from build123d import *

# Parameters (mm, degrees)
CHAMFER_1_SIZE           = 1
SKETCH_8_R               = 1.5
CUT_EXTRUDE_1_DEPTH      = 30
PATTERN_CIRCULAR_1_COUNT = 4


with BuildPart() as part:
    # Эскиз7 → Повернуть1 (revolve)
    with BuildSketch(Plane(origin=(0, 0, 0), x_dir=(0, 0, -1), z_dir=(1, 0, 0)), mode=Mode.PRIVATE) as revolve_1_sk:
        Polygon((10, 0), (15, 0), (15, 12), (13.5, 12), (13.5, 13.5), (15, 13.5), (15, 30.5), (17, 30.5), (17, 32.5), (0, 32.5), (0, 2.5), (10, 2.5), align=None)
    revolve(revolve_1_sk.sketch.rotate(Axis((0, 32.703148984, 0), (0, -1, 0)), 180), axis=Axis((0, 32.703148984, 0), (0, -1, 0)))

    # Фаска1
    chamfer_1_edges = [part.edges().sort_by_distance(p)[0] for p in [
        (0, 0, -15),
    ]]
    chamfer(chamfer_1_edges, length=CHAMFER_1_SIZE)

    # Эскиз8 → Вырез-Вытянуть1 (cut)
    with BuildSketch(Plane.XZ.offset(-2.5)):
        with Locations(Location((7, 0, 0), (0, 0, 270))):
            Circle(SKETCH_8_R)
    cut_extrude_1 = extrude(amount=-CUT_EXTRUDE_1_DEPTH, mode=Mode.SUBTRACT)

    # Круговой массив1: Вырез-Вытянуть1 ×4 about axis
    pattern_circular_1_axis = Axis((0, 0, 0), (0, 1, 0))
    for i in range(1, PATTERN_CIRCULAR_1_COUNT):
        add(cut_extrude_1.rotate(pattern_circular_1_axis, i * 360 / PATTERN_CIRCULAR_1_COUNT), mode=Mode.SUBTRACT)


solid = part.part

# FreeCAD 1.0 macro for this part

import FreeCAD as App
import Part
import Sketcher
from FreeCAD import Vector
Q = App.Units.Quantity


def edges_at(feature, points):
    """Names of the edges that pass closest to the given points."""
    edges = feature.Shape.Edges
    near = lambda p: min(range(len(edges)), key=lambda i: edges[i].distToShape(Part.Vertex(*p))[0])
    return sorted({f"Edge{near(p) + 1}" for p in points})

doc = App.newDocument("Part")
body = doc.addObject("PartDesign::Body", "Body")

# Sketch on YZ plane
sketch1 = doc.addObject("Sketcher::SketchObject", "Sketch")
body.addObject(sketch1)
sketch1.AttachmentSupport = (doc.YZ_Plane, [""])
sketch1.MapMode = "FlatFace"
sketch1.addGeometry([
    Part.LineSegment(Vector(0, -10, 0), Vector(0, -15, 0)),  # 0
    Part.LineSegment(Vector(0, -15, 0), Vector(12, -15, 0)),  # 1
    Part.LineSegment(Vector(12, -15, 0), Vector(12, -13.5, 0)),  # 2
    Part.LineSegment(Vector(12, -13.5, 0), Vector(13.5, -13.5, 0)),  # 3
    Part.LineSegment(Vector(13.5, -13.5, 0), Vector(13.5, -15, 0)),  # 4
    Part.LineSegment(Vector(13.5, -15, 0), Vector(30.5, -15, 0)),  # 5
    Part.LineSegment(Vector(30.5, -15, 0), Vector(30.5, -17, 0)),  # 6
    Part.LineSegment(Vector(30.5, -17, 0), Vector(32.5, -17, 0)),  # 7
    Part.LineSegment(Vector(32.5, -17, 0), Vector(32.5, 0, 0)),  # 8
    Part.LineSegment(Vector(32.5, 0, 0), Vector(2.5, 0, 0)),  # 9
    Part.LineSegment(Vector(2.5, 0, 0), Vector(2.5, -10, 0)),  # 10
    Part.LineSegment(Vector(2.5, -10, 0), Vector(0, -10, 0)),  # 11
], False)
sketch1.addConstraint([
    Sketcher.Constraint("Coincident", 0, 2, 1, 1),
    Sketcher.Constraint("Coincident", 1, 2, 2, 1),
    Sketcher.Constraint("Coincident", 2, 2, 3, 1),
    Sketcher.Constraint("Coincident", 3, 2, 4, 1),
    Sketcher.Constraint("Coincident", 4, 2, 5, 1),
    Sketcher.Constraint("Coincident", 5, 2, 6, 1),
    Sketcher.Constraint("Coincident", 6, 2, 7, 1),
    Sketcher.Constraint("Coincident", 7, 2, 8, 1),
    Sketcher.Constraint("Coincident", 8, 2, 9, 1),
    Sketcher.Constraint("Coincident", 9, 2, 10, 1),
    Sketcher.Constraint("Coincident", 10, 2, 11, 1),
    Sketcher.Constraint("Coincident", 11, 2, 0, 1),
    Sketcher.Constraint("Vertical", 0),
    Sketcher.Constraint("Horizontal", 1),
    Sketcher.Constraint("Vertical", 2),
    Sketcher.Constraint("Horizontal", 3),
    Sketcher.Constraint("Vertical", 4),
    Sketcher.Constraint("Horizontal", 5),
    Sketcher.Constraint("Vertical", 6),
    Sketcher.Constraint("Horizontal", 7),
    Sketcher.Constraint("Vertical", 8),
    Sketcher.Constraint("Horizontal", 9),
    Sketcher.Constraint("Vertical", 10),
    Sketcher.Constraint("Horizontal", 11),
    Sketcher.Constraint("PointOnObject", 0, 2, -2),
    Sketcher.Constraint("PointOnObject", 8, 2, -1),
    Sketcher.Constraint("Horizontal", 1, 2, 4, 2),
    Sketcher.Constraint("Equal", 3, 2),
    Sketcher.Constraint("Equal", 7, 6),
    Sketcher.Constraint("Equal", 5, 8),
    Sketcher.Constraint("DistanceX", 1, 1, 1, 2, Q("12 mm")),
    Sketcher.Constraint("DistanceX", 5, 1, 5, 2, Q("17 mm")),
    Sketcher.Constraint("DistanceX", 7, 1, 7, 2, Q("2 mm")),
    Sketcher.Constraint("DistanceX", 9, 2, 9, 1, Q("30 mm")),
    Sketcher.Constraint("DistanceY", 0, 2, 0, 1, Q("5 mm")),
    Sketcher.Constraint("DistanceX", 3, 1, 3, 2, Q("1.5 mm")),
])
revolution = doc.addObject("PartDesign::Revolution", "Revolution")
body.addObject(revolution)
revolution.Profile = sketch1
revolution.ReferenceAxis = (sketch1, ["H_Axis"])
revolution.Angle = 360
doc.recompute()

chamfer = doc.addObject("PartDesign::Chamfer", "Chamfer")
body.addObject(chamfer)
chamfer.Base = (revolution, edges_at(revolution, [(0, 0, -15)]))
chamfer.Size = 1

# Sketch on XZ plane
sketch2 = doc.addObject("Sketcher::SketchObject", "Sketch001")
body.addObject(sketch2)
sketch2.AttachmentSupport = (doc.XZ_Plane, [""])
sketch2.MapMode = "FlatFace"
sketch2.AttachmentOffset = App.Placement(Vector(0, 0, -2.5), App.Rotation())
sketch2.addGeometry(Part.Circle(Vector(7, 0, 0), Vector(0, 0, 1), 1.5), False)
sketch2.addConstraint([
    Sketcher.Constraint("PointOnObject", 0, 3, -1),
    Sketcher.Constraint("Diameter", 0, Q("3 mm")),
    Sketcher.Constraint("DistanceX", -1, 1, 0, 3, Q("7 mm")),
])
pocket1 = doc.addObject("PartDesign::Pocket", "Pocket")
body.addObject(pocket1)
pocket1.Profile = sketch2
pocket1.Length = 30
doc.recompute()

polarpattern = doc.addObject("PartDesign::PolarPattern", "PolarPattern")
body.addObject(polarpattern)
polarpattern.Originals = [pocket1]
polarpattern.Axis = (doc.Y_Axis, [""])
polarpattern.Angle = 360
polarpattern.Occurrences = 4
body.Tip = polarpattern

doc.recompute()
